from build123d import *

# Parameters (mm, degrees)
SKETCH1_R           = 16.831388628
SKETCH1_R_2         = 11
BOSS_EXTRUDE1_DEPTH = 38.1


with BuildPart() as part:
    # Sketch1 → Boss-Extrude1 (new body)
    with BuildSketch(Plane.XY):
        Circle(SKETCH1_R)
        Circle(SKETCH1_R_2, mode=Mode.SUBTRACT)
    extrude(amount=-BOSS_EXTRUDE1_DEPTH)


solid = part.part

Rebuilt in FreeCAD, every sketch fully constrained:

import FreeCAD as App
import Part
import Sketcher

V = App.Vector

doc = App.newDocument("Part")
body = doc.addObject("PartDesign::Body", "Body")

# Sketch on XY plane
sketch1 = body.newObject("Sketcher::SketchObject", "Sketch")
sketch1.AttachmentSupport = (doc.getObject("XY_Plane"), [""])
sketch1.MapMode = "FlatFace"
sketch1.addGeometry(Part.Circle(V(0, 0, 0), V(0, 0, 1), 17), False)
sketch1.addGeometry(Part.Circle(V(0, 0, 0), V(0, 0, 1), 11), False)
sketch1.addConstraint(Sketcher.Constraint("Coincident", 0, 3, -1, 1))
sketch1.addConstraint(Sketcher.Constraint("Coincident", 1, 3, -1, 1))
sketch1.addConstraint(Sketcher.Constraint("Diameter", 1, 22.0))
sketch1.addConstraint(Sketcher.Constraint("Diameter", 0, 33.662777))
pad1 = body.newObject("PartDesign::Pad", "Pad")
pad1.Profile = sketch1
pad1.Length = 38.1
pad1.Reversed = True

doc.recompute()
